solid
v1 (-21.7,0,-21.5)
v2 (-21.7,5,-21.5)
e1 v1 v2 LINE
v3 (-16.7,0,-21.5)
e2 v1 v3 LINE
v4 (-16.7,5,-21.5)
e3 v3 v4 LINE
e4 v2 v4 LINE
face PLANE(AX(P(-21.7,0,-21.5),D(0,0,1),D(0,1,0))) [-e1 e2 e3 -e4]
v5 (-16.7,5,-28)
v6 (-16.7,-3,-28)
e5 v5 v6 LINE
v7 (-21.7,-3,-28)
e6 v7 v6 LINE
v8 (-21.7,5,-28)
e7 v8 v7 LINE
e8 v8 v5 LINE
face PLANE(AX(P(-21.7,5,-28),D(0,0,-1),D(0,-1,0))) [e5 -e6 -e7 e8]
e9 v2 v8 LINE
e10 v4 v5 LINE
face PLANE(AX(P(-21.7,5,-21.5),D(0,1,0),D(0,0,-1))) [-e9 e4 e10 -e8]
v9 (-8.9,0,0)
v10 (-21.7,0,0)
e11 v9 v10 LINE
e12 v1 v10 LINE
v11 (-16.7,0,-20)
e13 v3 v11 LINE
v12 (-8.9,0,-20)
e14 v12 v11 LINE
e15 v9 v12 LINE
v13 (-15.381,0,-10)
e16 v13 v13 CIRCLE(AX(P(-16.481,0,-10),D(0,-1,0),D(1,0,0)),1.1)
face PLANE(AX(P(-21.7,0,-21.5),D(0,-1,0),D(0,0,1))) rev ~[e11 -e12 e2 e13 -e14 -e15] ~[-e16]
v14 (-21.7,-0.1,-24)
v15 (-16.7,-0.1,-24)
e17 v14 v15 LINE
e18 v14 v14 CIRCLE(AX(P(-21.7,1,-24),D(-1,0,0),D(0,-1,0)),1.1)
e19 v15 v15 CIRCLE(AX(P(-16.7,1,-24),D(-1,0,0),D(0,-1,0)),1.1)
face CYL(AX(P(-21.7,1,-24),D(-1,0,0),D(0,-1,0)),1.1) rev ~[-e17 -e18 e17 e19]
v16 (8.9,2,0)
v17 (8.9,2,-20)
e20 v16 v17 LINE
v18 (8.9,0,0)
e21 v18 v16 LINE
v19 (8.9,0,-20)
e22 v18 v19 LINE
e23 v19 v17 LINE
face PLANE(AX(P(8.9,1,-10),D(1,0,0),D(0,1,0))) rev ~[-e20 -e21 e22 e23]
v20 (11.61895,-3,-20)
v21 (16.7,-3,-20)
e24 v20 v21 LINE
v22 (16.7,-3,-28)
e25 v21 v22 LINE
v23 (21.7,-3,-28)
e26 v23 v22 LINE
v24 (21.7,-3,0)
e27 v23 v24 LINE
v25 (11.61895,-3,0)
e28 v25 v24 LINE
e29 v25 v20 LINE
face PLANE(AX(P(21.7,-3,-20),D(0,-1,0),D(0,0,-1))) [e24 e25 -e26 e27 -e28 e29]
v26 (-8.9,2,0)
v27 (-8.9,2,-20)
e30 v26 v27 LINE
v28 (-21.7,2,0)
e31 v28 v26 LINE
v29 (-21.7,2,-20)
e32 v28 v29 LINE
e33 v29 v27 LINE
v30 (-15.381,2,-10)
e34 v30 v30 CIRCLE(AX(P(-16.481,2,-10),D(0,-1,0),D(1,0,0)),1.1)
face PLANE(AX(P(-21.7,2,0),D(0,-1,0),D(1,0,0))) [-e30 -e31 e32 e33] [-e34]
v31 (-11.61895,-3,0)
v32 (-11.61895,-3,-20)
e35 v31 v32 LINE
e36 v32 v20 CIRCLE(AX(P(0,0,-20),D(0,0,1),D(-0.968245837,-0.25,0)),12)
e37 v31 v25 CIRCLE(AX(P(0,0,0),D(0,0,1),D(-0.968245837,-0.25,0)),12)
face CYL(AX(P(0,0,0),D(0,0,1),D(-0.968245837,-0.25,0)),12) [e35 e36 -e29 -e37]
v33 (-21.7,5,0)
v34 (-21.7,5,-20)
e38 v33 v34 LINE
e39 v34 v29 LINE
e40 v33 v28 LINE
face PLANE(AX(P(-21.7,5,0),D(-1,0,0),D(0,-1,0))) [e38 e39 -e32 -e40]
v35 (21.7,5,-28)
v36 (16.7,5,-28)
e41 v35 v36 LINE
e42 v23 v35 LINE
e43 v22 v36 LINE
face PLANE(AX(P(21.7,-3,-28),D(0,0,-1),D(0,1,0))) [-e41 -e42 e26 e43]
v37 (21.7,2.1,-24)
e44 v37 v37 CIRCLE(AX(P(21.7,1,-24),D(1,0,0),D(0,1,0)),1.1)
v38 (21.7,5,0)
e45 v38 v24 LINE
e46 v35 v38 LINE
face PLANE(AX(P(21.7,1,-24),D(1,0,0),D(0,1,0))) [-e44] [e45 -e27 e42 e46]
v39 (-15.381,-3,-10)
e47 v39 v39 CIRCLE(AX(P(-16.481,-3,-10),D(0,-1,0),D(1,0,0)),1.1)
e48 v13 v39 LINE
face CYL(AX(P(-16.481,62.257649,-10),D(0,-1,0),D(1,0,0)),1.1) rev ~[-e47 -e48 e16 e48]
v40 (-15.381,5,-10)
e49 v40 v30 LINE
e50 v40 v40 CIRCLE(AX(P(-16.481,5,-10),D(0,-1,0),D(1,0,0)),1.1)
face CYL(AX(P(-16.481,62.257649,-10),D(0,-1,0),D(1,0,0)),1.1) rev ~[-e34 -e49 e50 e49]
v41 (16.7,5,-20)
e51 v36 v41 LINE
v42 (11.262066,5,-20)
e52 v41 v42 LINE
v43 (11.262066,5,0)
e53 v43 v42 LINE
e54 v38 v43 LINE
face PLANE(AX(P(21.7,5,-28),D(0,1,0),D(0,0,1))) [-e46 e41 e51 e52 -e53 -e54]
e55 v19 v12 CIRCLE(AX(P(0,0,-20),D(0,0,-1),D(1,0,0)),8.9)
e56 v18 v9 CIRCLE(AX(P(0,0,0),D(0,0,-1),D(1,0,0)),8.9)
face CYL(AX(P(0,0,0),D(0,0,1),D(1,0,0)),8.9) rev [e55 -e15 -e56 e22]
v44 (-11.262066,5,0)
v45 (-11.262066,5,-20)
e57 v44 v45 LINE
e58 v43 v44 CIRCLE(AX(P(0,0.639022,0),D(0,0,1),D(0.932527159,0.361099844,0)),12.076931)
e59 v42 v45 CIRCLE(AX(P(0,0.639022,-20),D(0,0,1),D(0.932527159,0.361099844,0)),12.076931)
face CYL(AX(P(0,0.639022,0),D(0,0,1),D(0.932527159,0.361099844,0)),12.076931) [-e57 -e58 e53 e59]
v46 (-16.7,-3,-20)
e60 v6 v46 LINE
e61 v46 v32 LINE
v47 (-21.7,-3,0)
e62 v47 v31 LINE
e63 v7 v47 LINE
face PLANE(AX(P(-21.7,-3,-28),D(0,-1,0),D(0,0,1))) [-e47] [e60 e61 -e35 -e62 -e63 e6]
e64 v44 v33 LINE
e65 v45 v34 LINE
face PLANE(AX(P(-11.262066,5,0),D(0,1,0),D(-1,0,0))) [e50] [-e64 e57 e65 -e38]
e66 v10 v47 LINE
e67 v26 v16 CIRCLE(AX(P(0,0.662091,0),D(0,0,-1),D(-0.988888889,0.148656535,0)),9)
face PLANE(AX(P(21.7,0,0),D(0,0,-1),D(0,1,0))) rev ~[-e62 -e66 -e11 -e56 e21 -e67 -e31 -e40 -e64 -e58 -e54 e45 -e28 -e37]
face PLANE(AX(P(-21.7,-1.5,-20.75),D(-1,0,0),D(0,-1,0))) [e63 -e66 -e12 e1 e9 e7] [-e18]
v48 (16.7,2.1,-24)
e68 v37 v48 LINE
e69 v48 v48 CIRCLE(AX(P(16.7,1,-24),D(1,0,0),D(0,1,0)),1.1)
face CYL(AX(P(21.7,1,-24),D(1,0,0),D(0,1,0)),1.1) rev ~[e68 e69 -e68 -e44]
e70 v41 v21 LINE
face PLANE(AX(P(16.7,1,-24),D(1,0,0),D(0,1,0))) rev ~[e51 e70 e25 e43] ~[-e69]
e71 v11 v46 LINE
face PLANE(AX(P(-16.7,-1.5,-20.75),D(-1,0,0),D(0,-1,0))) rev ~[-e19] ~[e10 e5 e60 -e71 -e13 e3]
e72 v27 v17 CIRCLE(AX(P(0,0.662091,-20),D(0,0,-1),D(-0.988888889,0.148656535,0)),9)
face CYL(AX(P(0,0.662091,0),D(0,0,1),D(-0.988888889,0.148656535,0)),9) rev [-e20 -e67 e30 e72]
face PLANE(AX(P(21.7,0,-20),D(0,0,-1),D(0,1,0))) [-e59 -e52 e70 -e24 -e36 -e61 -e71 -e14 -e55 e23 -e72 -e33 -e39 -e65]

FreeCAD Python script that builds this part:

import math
import FreeCAD as App
import Part
import Sketcher
Q = App.Units.Quantity

doc = App.newDocument("Part")
body = doc.addObject("PartDesign::Body", "Body")

# Sketch on XY plane
sketch1 = body.newObject("Sketcher::SketchObject", "Sketch")
sketch1.AttachmentSupport = (doc.getObject("XY_Plane"), [""])
sketch1.MapMode = "FlatFace"
sketch1.addGeometry(Part.LineSegment(App.Vector(-8.9, 0, 0), App.Vector(-21.7, 0, 0)), False)
sketch1.addGeometry(Part.LineSegment(App.Vector(-21.7, 0, 0), App.Vector(-21.7, -3, 0)), False)
sketch1.addGeometry(Part.LineSegment(App.Vector(-21.7, -3, 0), App.Vector(-11.6, -3, 0)), False)
sketch1.addGeometry(Part.ArcOfCircle(Part.Circle(App.Vector(0, 0, 0), App.Vector(0, 0, 1), 12), math.radians(-166), math.radians(-14)), False)
sketch1.addGeometry(Part.LineSegment(App.Vector(11.6, -3, 0), App.Vector(21.7, -3, 0)), False)
sketch1.addGeometry(Part.LineSegment(App.Vector(21.7, -3, 0), App.Vector(21.7, 0, 0)), False)
sketch1.addGeometry(Part.LineSegment(App.Vector(21.7, 0, 0), App.Vector(8.9, 0, 0)), False)
sketch1.addGeometry(Part.ArcOfCircle(Part.Circle(App.Vector(0, 0, 0), App.Vector(0, 0, 1), 8.9), math.radians(180), math.radians(360)), False)
sketch1.addConstraint(Sketcher.Constraint("Coincident", 0, 2, 1, 1))
sketch1.addConstraint(Sketcher.Constraint("Coincident", 1, 2, 2, 1))
sketch1.addConstraint(Sketcher.Constraint("Coincident", 2, 2, 3, 1))
sketch1.addConstraint(Sketcher.Constraint("Coincident", 3, 2, 4, 1))
sketch1.addConstraint(Sketcher.Constraint("Coincident", 4, 2, 5, 1))
sketch1.addConstraint(Sketcher.Constraint("Coincident", 5, 2, 6, 1))
sketch1.addConstraint(Sketcher.Constraint("Coincident", 6, 2, 7, 2))
sketch1.addConstraint(Sketcher.Constraint("Coincident", 7, 1, 0, 1))
sketch1.addConstraint(Sketcher.Constraint("Horizontal", 0))
sketch1.addConstraint(Sketcher.Constraint("Vertical", 1))
sketch1.addConstraint(Sketcher.Constraint("Horizontal", 2))
sketch1.addConstraint(Sketcher.Constraint("Horizontal", 4))
sketch1.addConstraint(Sketcher.Constraint("Vertical", 5))
sketch1.addConstraint(Sketcher.Constraint("Horizontal", 6))
sketch1.addConstraint(Sketcher.Constraint("Coincident", 3, 3, -1, 1))
sketch1.addConstraint(Sketcher.Constraint("Coincident", 7, 3, -1, 1))
sketch1.addConstraint(Sketcher.Constraint("Symmetric", 0, 2, 5, 2, -1, 1))
sketch1.addConstraint(Sketcher.Constraint("PointOnObject", 0, 2, -1))
sketch1.addConstraint(Sketcher.Constraint("Horizontal", 2, 2, 3, 2))
sketch1.addConstraint(Sketcher.Constraint("Radius", 3, Q("12 mm")))
sketch1.addConstraint(Sketcher.Constraint("Radius", 7, Q("8.9 mm")))
sketch1.addConstraint(Sketcher.Constraint("DistanceY", 1, 2, 1, 1, Q("3 mm")))
sketch1.addConstraint(Sketcher.Constraint("DistanceX", 0, 2, 0, 1, Q("12.8 mm")))
pad1 = body.newObject("PartDesign::Pad", "Pad")
pad1.Profile = sketch1
pad1.Length = 20
pad1.Reversed = True
body2 = doc.addObject("PartDesign::Body", "Body001")

# Sketch on XY plane
sketch2 = body2.newObject("Sketcher::SketchObject", "Sketch001")
sketch2.AttachmentSupport = (doc.getObject("XY_Plane001"), [""])
sketch2.MapMode = "FlatFace"
sketch2.addGeometry(Part.LineSegment(App.Vector(-21.7, 2, 0), App.Vector(-8.9, 2, 0)), False)
sketch2.addGeometry(Part.ArcOfCircle(Part.Circle(App.Vector(0, 0.7, 0), App.Vector(0, 0, 1), 9), math.radians(9), math.radians(171)), False)
sketch2.addGeometry(Part.LineSegment(App.Vector(8.9, 2, 0), App.Vector(21.7, 2, 0)), False)
sketch2.addGeometry(Part.LineSegment(App.Vector(21.7, 2, 0), App.Vector(21.7, 5, 0)), False)
sketch2.addGeometry(Part.LineSegment(App.Vector(21.7, 5, 0), App.Vector(11.3, 5, 0)), False)
sketch2.addGeometry(Part.ArcOfCircle(Part.Circle(App.Vector(0, 0.6, 0), App.Vector(0, 0, 1), 12.1), math.radians(21), math.radians(159)), False)
sketch2.addGeometry(Part.LineSegment(App.Vector(-11.3, 5, 0), App.Vector(-21.7, 5, 0)), False)
sketch2.addGeometry(Part.LineSegment(App.Vector(-21.7, 5, 0), App.Vector(-21.7, 2, 0)), False)
sketch2.addConstraint(Sketcher.Constraint("Coincident", 0, 2, 1, 2))
sketch2.addConstraint(Sketcher.Constraint("Coincident", 1, 1, 2, 1))
sketch2.addConstraint(Sketcher.Constraint("Coincident", 2, 2, 3, 1))
sketch2.addConstraint(Sketcher.Constraint("Coincident", 3, 2, 4, 1))
sketch2.addConstraint(Sketcher.Constraint("Coincident", 4, 2, 5, 1))
sketch2.addConstraint(Sketcher.Constraint("Coincident", 5, 2, 6, 1))
sketch2.addConstraint(Sketcher.Constraint("Coincident", 6, 2, 7, 1))
sketch2.addConstraint(Sketcher.Constraint("Coincident", 7, 2, 0, 1))
sketch2.addConstraint(Sketcher.Constraint("Horizontal", 0))
sketch2.addConstraint(Sketcher.Constraint("Horizontal", 2))
sketch2.addConstraint(Sketcher.Constraint("Vertical", 3))
sketch2.addConstraint(Sketcher.Constraint("Horizontal", 4))
sketch2.addConstraint(Sketcher.Constraint("Horizontal", 6))
sketch2.addConstraint(Sketcher.Constraint("Vertical", 7))
sketch2.addConstraint(Sketcher.Constraint("Symmetric", 0, 2, 1, 1, -2))
sketch2.addConstraint(Sketcher.Constraint("Symmetric", 4, 2, 5, 2, -2))
sketch2.addConstraint(Sketcher.Constraint("Equal", 0, 2))
sketch2.addConstraint(Sketcher.Constraint("Radius", 1, Q("9 mm")))
sketch2.addConstraint(Sketcher.Constraint("DistanceY", 3, 1, 3, 2, Q("3 mm")))
sketch2.addConstraint(Sketcher.Constraint("DistanceX", 0, 1, 0, 2, Q("12.8 mm")))
sketch2.addConstraint(Sketcher.Constraint("DistanceY", -1, 1, 0, 2, Q("2 mm")))
sketch2.addConstraint(Sketcher.Constraint("DistanceX", 0, 2, -1, 1, Q("8.9 mm")))
sketch2.addConstraint(Sketcher.Constraint("Radius", 5, Q("12.076931 mm")))
sketch2.addConstraint(Sketcher.Constraint("DistanceX", 4, 2, 4, 1, Q("10.437934 mm")))
pad2 = body2.newObject("PartDesign::Pad", "Pad001")
pad2.Profile = sketch2
pad2.Length = 20
pad2.Reversed = True
body.AllowCompound = True
doc.recompute()

boolean = body.newObject("PartDesign::Boolean", "Boolean")
boolean.Type = "Fuse"
boolean.addObjects([body2])

# Sketch on YZ plane
sketch3 = body.newObject("Sketcher::SketchObject", "Sketch002")
sketch3.AttachmentSupport = (doc.getObject("YZ_Plane"), [""])
sketch3.MapMode = "FlatFace"
sketch3.AttachmentOffset = App.Placement(App.Vector(0, 0, 21.7), App.Rotation())
sketch3.addGeometry(Part.LineSegment(App.Vector(0, 0, 0), App.Vector(0, -20, 0)), False)
sketch3.addGeometry(Part.LineSegment(App.Vector(0, -20, 0), App.Vector(2, -20, 0)), False)
sketch3.addGeometry(Part.LineSegment(App.Vector(2, -20, 0), App.Vector(2, 0, 0)), False)
sketch3.addGeometry(Part.LineSegment(App.Vector(2, 0, 0), App.Vector(0, 0, 0)), False)
sketch3.addConstraint(Sketcher.Constraint("Coincident", 0, 2, 1, 1))
sketch3.addConstraint(Sketcher.Constraint("Coincident", 1, 2, 2, 1))
sketch3.addConstraint(Sketcher.Constraint("Coincident", 2, 2, 3, 1))
sketch3.addConstraint(Sketcher.Constraint("Coincident", 3, 2, 0, 1))
sketch3.addConstraint(Sketcher.Constraint("Vertical", 0))
sketch3.addConstraint(Sketcher.Constraint("Horizontal", 1))
sketch3.addConstraint(Sketcher.Constraint("Vertical", 2))
sketch3.addConstraint(Sketcher.Constraint("Horizontal", 3))
sketch3.addConstraint(Sketcher.Constraint("Coincident", 3, 2, -1, 1))
sketch3.addConstraint(Sketcher.Constraint("DistanceX", 1, 1, 1, 2, Q("2 mm")))
sketch3.addConstraint(Sketcher.Constraint("DistanceY", 0, 2, 0, 1, Q("20 mm")))
pad3 = body.newObject("PartDesign::Pad", "Pad002")
pad3.Profile = sketch3
pad3.Length = 12.8
pad3.Reversed = True

# Sketch on YZ plane
sketch4 = body.newObject("Sketcher::SketchObject", "Sketch003")
sketch4.AttachmentSupport = (doc.getObject("YZ_Plane"), [""])
sketch4.MapMode = "FlatFace"
sketch4.AttachmentOffset = App.Placement(App.Vector(0, 0, 21.7), App.Rotation())
sketch4.addGeometry(Part.LineSegment(App.Vector(-3, -20, 0), App.Vector(-3, -28, 0)), False)
sketch4.addGeometry(Part.LineSegment(App.Vector(-3, -28, 0), App.Vector(5, -28, 0)), False)
sketch4.addGeometry(Part.LineSegment(App.Vector(5, -28, 0), App.Vector(5, -20, 0)), False)
sketch4.addGeometry(Part.LineSegment(App.Vector(5, -20, 0), App.Vector(-3, -20, 0)), False)
sketch4.addGeometry(Part.Circle(App.Vector(1, -24, 0), App.Vector(0, 0, 1), 1.1), False)
sketch4.addConstraint(Sketcher.Constraint("Coincident", 0, 2, 1, 1))
sketch4.addConstraint(Sketcher.Constraint("Coincident", 1, 2, 2, 1))
sketch4.addConstraint(Sketcher.Constraint("Coincident", 2, 2, 3, 1))
sketch4.addConstraint(Sketcher.Constraint("Coincident", 3, 2, 0, 1))
sketch4.addConstraint(Sketcher.Constraint("Vertical", 0))
sketch4.addConstraint(Sketcher.Constraint("Horizontal", 1))
sketch4.addConstraint(Sketcher.Constraint("Vertical", 2))
sketch4.addConstraint(Sketcher.Constraint("Horizontal", 3))
sketch4.addConstraint(Sketcher.Constraint("Equal", 3, 0))
sketch4.addConstraint(Sketcher.Constraint("Diameter", 4, Q("2.2 mm")))
sketch4.addConstraint(Sketcher.Constraint("DistanceX", 1, 1, 1, 2, Q("8 mm")))
sketch4.addConstraint(Sketcher.Constraint("DistanceX", -1, 1, 4, 3, Q("1 mm")))
sketch4.addConstraint(Sketcher.Constraint("DistanceY", 4, 3, -1, 1, Q("24 mm")))
sketch4.addConstraint(Sketcher.Constraint("DistanceX", 0, 2, -1, 1, Q("3 mm")))
sketch4.addConstraint(Sketcher.Constraint("DistanceY", 0, 2, -1, 1, Q("28 mm")))
pad4 = body.newObject("PartDesign::Pad", "Pad003")
pad4.Profile = sketch4
pad4.Length = 5
pad4.Reversed = True

# Sketch on YZ plane
sketch5 = body.newObject("Sketcher::SketchObject", "Sketch004")
sketch5.AttachmentSupport = (doc.getObject("YZ_Plane"), [""])
sketch5.MapMode = "FlatFace"
sketch5.AttachmentOffset = App.Placement(App.Vector(0, 0, -21.7), App.Rotation())
sketch5.addGeometry(Part.LineSegment(App.Vector(0, -20, 0), App.Vector(0, -21.5, 0)), False)
sketch5.addGeometry(Part.LineSegment(App.Vector(0, -21.5, 0), App.Vector(5, -21.5, 0)), False)
sketch5.addGeometry(Part.LineSegment(App.Vector(5, -21.5, 0), App.Vector(5, -28, 0)), False)
sketch5.addGeometry(Part.LineSegment(App.Vector(5, -28, 0), App.Vector(-3, -28, 0)), False)
sketch5.addGeometry(Part.LineSegment(App.Vector(-3, -28, 0), App.Vector(-3, -20, 0)), False)
sketch5.addGeometry(Part.LineSegment(App.Vector(-3, -20, 0), App.Vector(0, -20, 0)), False)
sketch5.addGeometry(Part.Circle(App.Vector(1, -24, 0), App.Vector(0, 0, 1), 1.1), False)
sketch5.addConstraint(Sketcher.Constraint("Coincident", 0, 2, 1, 1))
sketch5.addConstraint(Sketcher.Constraint("Coincident", 1, 2, 2, 1))
sketch5.addConstraint(Sketcher.Constraint("Coincident", 2, 2, 3, 1))
sketch5.addConstraint(Sketcher.Constraint("Coincident", 3, 2, 4, 1))
sketch5.addConstraint(Sketcher.Constraint("Coincident", 4, 2, 5, 1))
sketch5.addConstraint(Sketcher.Constraint("Coincident", 5, 2, 0, 1))
sketch5.addConstraint(Sketcher.Constraint("Vertical", 0))
sketch5.addConstraint(Sketcher.Constraint("Horizontal", 1))
sketch5.addConstraint(Sketcher.Constraint("Vertical", 2))
sketch5.addConstraint(Sketcher.Constraint("Horizontal", 3))
sketch5.addConstraint(Sketcher.Constraint("Vertical", 4))
sketch5.addConstraint(Sketcher.Constraint("Horizontal", 5))
sketch5.addConstraint(Sketcher.Constraint("PointOnObject", 0, 2, -2))
sketch5.addConstraint(Sketcher.Constraint("Equal", 3, 4))
sketch5.addConstraint(Sketcher.Constraint("Diameter", 6, Q("2.2 mm")))
sketch5.addConstraint(Sketcher.Constraint("DistanceX", 1, 1, 1, 2, Q("5 mm")))
sketch5.addConstraint(Sketcher.Constraint("DistanceX", 3, 2, 3, 1, Q("8 mm")))
sketch5.addConstraint(Sketcher.Constraint("DistanceY", 0, 2, 0, 1, Q("1.5 mm")))
sketch5.addConstraint(Sketcher.Constraint("DistanceX", -1, 1, 6, 3, Q("1 mm")))
sketch5.addConstraint(Sketcher.Constraint("DistanceY", 6, 3, -1, 1, Q("24 mm")))
sketch5.addConstraint(Sketcher.Constraint("DistanceY", 2, 2, -1, 1, Q("28 mm")))
pad5 = body.newObject("PartDesign::Pad", "Pad004")
pad5.Profile = sketch5
pad5.Length = 5

# Sketch on XZ plane
sketch6 = body.newObject("Sketcher::SketchObject", "Sketch005")
sketch6.AttachmentSupport = (doc.getObject("XZ_Plane"), [""])
sketch6.MapMode = "FlatFace"
sketch6.AttachmentOffset = App.Placement(App.Vector(0, 0, -5), App.Rotation())
sketch6.addGeometry(Part.Circle(App.Vector(-16.5, -10, 0), App.Vector(0, 0, 1), 1.1), False)
sketch6.addConstraint(Sketcher.Constraint("Diameter", 0, Q("2.2 mm")))
sketch6.addConstraint(Sketcher.Constraint("DistanceY", 0, 3, -1, 1, Q("10 mm")))
sketch6.addConstraint(Sketcher.Constraint("DistanceX", 0, 3, -1, 1, Q("16.481 mm")))
doc.recompute()
hole = body.newObject("PartDesign::Hole", "Hole")
hole.Profile = sketch6
hole.ThreadType = "None"
hole.Diameter = 2.2
hole.DepthType = "ThroughAll"
hole.Reversed = True

doc.recompute()
